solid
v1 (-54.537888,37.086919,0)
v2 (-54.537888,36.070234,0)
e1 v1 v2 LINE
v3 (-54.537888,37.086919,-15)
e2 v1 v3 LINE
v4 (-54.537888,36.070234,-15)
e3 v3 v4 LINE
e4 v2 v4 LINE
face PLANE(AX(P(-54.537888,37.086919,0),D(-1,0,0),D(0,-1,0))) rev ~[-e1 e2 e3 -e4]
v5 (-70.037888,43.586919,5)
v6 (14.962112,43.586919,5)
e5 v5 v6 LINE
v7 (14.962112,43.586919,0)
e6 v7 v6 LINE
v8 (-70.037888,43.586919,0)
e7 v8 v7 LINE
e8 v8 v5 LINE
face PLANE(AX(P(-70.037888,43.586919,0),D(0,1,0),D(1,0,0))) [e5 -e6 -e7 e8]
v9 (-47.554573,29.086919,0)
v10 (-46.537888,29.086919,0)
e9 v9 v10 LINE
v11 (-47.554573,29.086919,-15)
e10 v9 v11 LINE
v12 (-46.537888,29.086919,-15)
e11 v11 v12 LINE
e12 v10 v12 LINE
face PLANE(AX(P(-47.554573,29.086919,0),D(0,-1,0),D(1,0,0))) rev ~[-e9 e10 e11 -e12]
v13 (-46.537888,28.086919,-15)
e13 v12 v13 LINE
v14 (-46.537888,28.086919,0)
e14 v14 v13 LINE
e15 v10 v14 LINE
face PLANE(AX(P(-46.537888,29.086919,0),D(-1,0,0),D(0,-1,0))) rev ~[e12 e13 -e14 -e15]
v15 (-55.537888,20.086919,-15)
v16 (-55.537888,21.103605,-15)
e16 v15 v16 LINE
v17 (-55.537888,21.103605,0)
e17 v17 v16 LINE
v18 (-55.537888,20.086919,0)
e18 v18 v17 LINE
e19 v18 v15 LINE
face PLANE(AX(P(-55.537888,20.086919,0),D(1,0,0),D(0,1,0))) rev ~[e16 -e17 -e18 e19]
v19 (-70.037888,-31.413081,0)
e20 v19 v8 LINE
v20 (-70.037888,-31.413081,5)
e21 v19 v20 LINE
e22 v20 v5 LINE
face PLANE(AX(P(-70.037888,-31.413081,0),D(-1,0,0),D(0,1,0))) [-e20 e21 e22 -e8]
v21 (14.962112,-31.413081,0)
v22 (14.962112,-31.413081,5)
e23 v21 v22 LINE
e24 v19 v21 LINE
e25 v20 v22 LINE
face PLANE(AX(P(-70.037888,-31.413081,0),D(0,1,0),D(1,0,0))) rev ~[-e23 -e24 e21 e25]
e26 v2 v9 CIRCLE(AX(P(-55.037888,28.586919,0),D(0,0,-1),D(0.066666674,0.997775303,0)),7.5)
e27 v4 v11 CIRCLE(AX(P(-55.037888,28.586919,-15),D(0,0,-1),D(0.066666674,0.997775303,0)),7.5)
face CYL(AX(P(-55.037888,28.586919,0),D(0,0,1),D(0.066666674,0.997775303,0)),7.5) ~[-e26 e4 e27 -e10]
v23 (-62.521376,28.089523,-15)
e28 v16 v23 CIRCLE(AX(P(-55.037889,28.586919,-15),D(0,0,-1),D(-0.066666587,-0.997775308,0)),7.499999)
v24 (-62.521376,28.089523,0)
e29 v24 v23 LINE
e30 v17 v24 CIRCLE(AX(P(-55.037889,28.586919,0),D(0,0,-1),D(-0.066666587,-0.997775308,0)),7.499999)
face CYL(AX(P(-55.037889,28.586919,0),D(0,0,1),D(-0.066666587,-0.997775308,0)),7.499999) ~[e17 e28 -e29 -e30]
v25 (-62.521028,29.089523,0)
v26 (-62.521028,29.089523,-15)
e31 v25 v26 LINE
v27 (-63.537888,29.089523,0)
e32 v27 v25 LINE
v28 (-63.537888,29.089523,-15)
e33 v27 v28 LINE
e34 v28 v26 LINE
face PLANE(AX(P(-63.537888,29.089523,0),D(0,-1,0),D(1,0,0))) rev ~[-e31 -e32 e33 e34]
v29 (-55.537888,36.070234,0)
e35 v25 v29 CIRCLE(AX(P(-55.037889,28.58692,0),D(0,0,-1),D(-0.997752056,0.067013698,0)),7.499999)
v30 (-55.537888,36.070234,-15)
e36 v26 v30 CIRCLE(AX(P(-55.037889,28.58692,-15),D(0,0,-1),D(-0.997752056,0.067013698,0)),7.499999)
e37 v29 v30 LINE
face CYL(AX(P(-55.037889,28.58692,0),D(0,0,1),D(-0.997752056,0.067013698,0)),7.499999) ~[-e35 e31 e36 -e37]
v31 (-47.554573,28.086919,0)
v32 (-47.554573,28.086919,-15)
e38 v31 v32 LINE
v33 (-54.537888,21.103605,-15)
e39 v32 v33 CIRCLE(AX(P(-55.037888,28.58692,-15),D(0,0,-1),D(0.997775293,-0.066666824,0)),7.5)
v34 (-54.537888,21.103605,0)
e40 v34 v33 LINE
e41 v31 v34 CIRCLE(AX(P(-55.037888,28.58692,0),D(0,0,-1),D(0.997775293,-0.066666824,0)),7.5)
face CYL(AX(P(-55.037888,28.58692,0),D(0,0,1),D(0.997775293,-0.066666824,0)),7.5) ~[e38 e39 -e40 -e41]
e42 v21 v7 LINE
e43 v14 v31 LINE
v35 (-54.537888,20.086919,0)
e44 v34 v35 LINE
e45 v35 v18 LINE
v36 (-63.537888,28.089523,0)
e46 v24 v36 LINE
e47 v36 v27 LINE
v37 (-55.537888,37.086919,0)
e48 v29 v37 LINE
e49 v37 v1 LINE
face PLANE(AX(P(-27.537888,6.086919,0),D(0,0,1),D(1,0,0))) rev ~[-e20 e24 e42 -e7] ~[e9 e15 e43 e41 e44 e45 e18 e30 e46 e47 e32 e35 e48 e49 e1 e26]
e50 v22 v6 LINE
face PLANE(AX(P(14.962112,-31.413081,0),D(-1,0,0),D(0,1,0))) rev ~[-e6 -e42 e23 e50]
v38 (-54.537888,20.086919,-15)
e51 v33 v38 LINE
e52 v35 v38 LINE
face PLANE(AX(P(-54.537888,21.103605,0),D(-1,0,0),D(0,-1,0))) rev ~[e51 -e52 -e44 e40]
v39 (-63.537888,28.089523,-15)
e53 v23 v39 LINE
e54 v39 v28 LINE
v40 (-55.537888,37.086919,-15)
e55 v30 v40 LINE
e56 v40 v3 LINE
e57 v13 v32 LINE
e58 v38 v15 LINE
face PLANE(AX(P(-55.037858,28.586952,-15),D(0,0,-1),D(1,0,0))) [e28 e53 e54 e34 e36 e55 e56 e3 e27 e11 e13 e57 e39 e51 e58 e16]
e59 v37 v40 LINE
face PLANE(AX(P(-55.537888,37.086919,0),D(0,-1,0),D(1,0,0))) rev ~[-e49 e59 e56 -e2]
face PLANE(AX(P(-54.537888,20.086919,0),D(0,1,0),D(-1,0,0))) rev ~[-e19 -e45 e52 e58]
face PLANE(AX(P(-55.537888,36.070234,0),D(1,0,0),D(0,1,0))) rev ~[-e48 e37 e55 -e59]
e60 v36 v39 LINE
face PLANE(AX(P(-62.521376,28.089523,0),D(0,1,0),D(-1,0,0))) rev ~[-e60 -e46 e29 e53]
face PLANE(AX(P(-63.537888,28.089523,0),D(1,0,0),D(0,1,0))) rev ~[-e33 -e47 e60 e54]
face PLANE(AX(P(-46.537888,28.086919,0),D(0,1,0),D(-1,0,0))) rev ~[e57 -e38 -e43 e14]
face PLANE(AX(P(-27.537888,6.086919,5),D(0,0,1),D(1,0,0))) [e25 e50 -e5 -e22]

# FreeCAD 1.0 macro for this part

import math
import FreeCAD as App
import Part
import Sketcher

V = App.Vector

doc = App.newDocument("Part")
body = doc.addObject("PartDesign::Body", "Body")

sketch1 = doc.addObject("Sketcher::SketchObject", "Sketch")
body.addObject(sketch1)
sketch1.AttachmentSupport = (doc.XY_Plane, [""])
sketch1.MapMode = "FlatFace"
sketch1.addGeometry(Part.LineSegment(V(-70, 44, 0), V(-70, -31, 0)), False)
sketch1.addGeometry(Part.LineSegment(V(-70, -31, 0), V(15, -31, 0)), False)
sketch1.addGeometry(Part.LineSegment(V(15, -31, 0), V(15, 44, 0)), False)
sketch1.addGeometry(Part.LineSegment(V(15, 44, 0), V(-70, 44, 0)), False)
sketch1.addConstraint(Sketcher.Constraint("Coincident", 0, 2, 1, 1))
sketch1.addConstraint(Sketcher.Constraint("Coincident", 1, 2, 2, 1))
sketch1.addConstraint(Sketcher.Constraint("Coincident", 2, 2, 3, 1))
sketch1.addConstraint(Sketcher.Constraint("Coincident", 3, 2, 0, 1))
sketch1.addConstraint(Sketcher.Constraint("Vertical", 0))
sketch1.addConstraint(Sketcher.Constraint("Horizontal", 1))
sketch1.addConstraint(Sketcher.Constraint("Vertical", 2))
sketch1.addConstraint(Sketcher.Constraint("Horizontal", 3))
sketch1.addConstraint(Sketcher.Constraint("DistanceX", 1, 1, 1, 2, 85.0))
sketch1.addConstraint(Sketcher.Constraint("DistanceY", 0, 2, 0, 1, 75.0))
sketch1.addConstraint(Sketcher.Constraint("DistanceY", 0, 2, -1, 1, 31.413081))
sketch1.addConstraint(Sketcher.Constraint("DistanceX", 0, 2, -1, 1, 70.037888))
pad1 = doc.addObject("PartDesign::Pad", "Pad")
body.addObject(pad1)
pad1.Profile = sketch1
pad1.Length = 5

sketch2 = doc.addObject("Sketcher::SketchObject", "Sketch001")
body.addObject(sketch2)
sketch2.AttachmentSupport = (doc.XY_Plane, [""])
sketch2.MapMode = "FlatFace"
sketch2.addGeometry(Part.ArcOfCircle(Part.Circle(V(-55.037888, 28.58692, 0), V(0, 0, 1), 7.5), math.radians(-86.177445), math.radians(-3.822563)), False)
sketch2.addGeometry(Part.LineSegment(V(-54.537888, 21.103605, 0), V(-54.537888, 20.086919, 0)), False)
sketch2.addGeometry(Part.LineSegment(V(-54.537888, 20.086919, 0), V(-55.537888, 20.086919, 0)), False)
sketch2.addGeometry(Part.LineSegment(V(-55.537888, 20.086919, 0), V(-55.537888, 21.103605, 0)), False)
sketch2.addGeometry(Part.ArcOfCircle(Part.Circle(V(-55.037889, 28.586919, 0), V(0, 0, 1), 7.499999), math.radians(-176.197384), math.radians(-93.822549)), False)
sketch2.addGeometry(Part.LineSegment(V(-62.521376, 28.089523, 0), V(-63.537888, 28.089523, 0)), False)
sketch2.addGeometry(Part.LineSegment(V(-63.537888, 28.089523, 0), V(-63.537888, 29.089523, 0)), False)
sketch2.addGeometry(Part.LineSegment(V(-63.537888, 29.089523, 0), V(-62.521028, 29.089523, 0)), False)
sketch2.addGeometry(Part.ArcOfCircle(Part.Circle(V(-55.037889, 28.58692, 0), V(0, 0, 1), 7.499999), math.radians(93.822549), math.radians(176.157518)), False)
sketch2.addGeometry(Part.LineSegment(V(-55.537888, 36.070234, 0), V(-55.537888, 37.086919, 0)), False)
sketch2.addGeometry(Part.LineSegment(V(-55.537888, 37.086919, 0), V(-54.537888, 37.086919, 0)), False)
sketch2.addGeometry(Part.LineSegment(V(-54.537888, 37.086919, 0), V(-54.537888, 36.070234, 0)), False)
sketch2.addGeometry(Part.ArcOfCircle(Part.Circle(V(-55.037888, 28.586919, 0), V(0, 0, 1), 7.5), math.radians(3.822554), math.radians(86.177446)), False)
sketch2.addGeometry(Part.LineSegment(V(-47.554573, 29.086919, 0), V(-46.537888, 29.086919, 0)), False)
sketch2.addGeometry(Part.LineSegment(V(-46.537888, 29.086919, 0), V(-46.537888, 28.086919, 0)), False)
sketch2.addGeometry(Part.LineSegment(V(-46.537888, 28.086919, 0), V(-47.554573, 28.086919, 0)), False)
sketch2.addConstraint(Sketcher.Constraint("Coincident", 0, 1, 1, 1))
sketch2.addConstraint(Sketcher.Constraint("Coincident", 1, 2, 2, 1))
sketch2.addConstraint(Sketcher.Constraint("Coincident", 2, 2, 3, 1))
sketch2.addConstraint(Sketcher.Constraint("Coincident", 3, 2, 4, 2))
sketch2.addConstraint(Sketcher.Constraint("Coincident", 4, 1, 5, 1))
sketch2.addConstraint(Sketcher.Constraint("Coincident", 5, 2, 6, 1))
sketch2.addConstraint(Sketcher.Constraint("Coincident", 6, 2, 7, 1))
sketch2.addConstraint(Sketcher.Constraint("Coincident", 7, 2, 8, 2))
sketch2.addConstraint(Sketcher.Constraint("Coincident", 8, 1, 9, 1))
sketch2.addConstraint(Sketcher.Constraint("Coincident", 9, 2, 10, 1))
sketch2.addConstraint(Sketcher.Constraint("Coincident", 10, 2, 11, 1))
sketch2.addConstraint(Sketcher.Constraint("Coincident", 11, 2, 12, 2))
sketch2.addConstraint(Sketcher.Constraint("Coincident", 12, 1, 13, 1))
sketch2.addConstraint(Sketcher.Constraint("Coincident", 13, 2, 14, 1))
sketch2.addConstraint(Sketcher.Constraint("Coincident", 14, 2, 15, 1))
sketch2.addConstraint(Sketcher.Constraint("Coincident", 15, 2, 0, 2))
sketch2.addConstraint(Sketcher.Constraint("Vertical", 1))
sketch2.addConstraint(Sketcher.Constraint("Horizontal", 2))
sketch2.addConstraint(Sketcher.Constraint("Vertical", 3))
sketch2.addConstraint(Sketcher.Constraint("Horizontal", 5))
sketch2.addConstraint(Sketcher.Constraint("Vertical", 6))
sketch2.addConstraint(Sketcher.Constraint("Horizontal", 7))
sketch2.addConstraint(Sketcher.Constraint("Vertical", 9))
sketch2.addConstraint(Sketcher.Constraint("Horizontal", 10))
sketch2.addConstraint(Sketcher.Constraint("Vertical", 11))
sketch2.addConstraint(Sketcher.Constraint("Horizontal", 13))
sketch2.addConstraint(Sketcher.Constraint("Vertical", 14))
sketch2.addConstraint(Sketcher.Constraint("Horizontal", 15))
sketch2.addConstraint(Sketcher.Constraint("Coincident", 4, 3, 0, 3))
sketch2.addConstraint(Sketcher.Constraint("Coincident", 8, 3, 0, 3))
sketch2.addConstraint(Sketcher.Constraint("Coincident", 12, 3, 0, 3))
sketch2.addConstraint(Sketcher.Constraint("Equal", 0, 4))
sketch2.addConstraint(Sketcher.Constraint("Equal", 4, 8))
sketch2.addConstraint(Sketcher.Constraint("Equal", 8, 12))
sketch2.addConstraint(Sketcher.Constraint("Horizontal", 0, 1, 3, 2))
sketch2.addConstraint(Sketcher.Constraint("Horizontal", 8, 1, 11, 2))
sketch2.addConstraint(Sketcher.Constraint("Vertical", 3, 2, 8, 1))
sketch2.addConstraint(Sketcher.Constraint("Vertical", 12, 1, 15, 2))
sketch2.addConstraint(Sketcher.Constraint("Equal", 15, 1))
sketch2.addConstraint(Sketcher.Constraint("Equal", 10, 6))
sketch2.addConstraint(Sketcher.Constraint("Equal", 3, 9))
sketch2.addConstraint(Sketcher.Constraint("Equal", 6, 14))
sketch2.addConstraint(Sketcher.Constraint("Radius", 0, 7.5))
sketch2.addConstraint(Sketcher.Constraint("DistanceX", 2, 2, 2, 1, 1.0))
sketch2.addConstraint(Sketcher.Constraint("DistanceY", 1, 2, 4, 3, 8.5))
sketch2.addConstraint(Sketcher.Constraint("DistanceX", 5, 2, 4, 3, 8.499999))
sketch2.addConstraint(Sketcher.Constraint("DistanceX", 7, 1, 7, 2, 1.01686))
sketch2.addConstraint(Sketcher.Constraint("DistanceX", 0, 3, -1, 1, 55.037888))
sketch2.addConstraint(Sketcher.Constraint("DistanceY", -1, 1, 0, 3, 28.58692))
pad2 = doc.addObject("PartDesign::Pad", "Pad001")
body.addObject(pad2)
pad2.Profile = sketch2
pad2.Length = 15
pad2.Reversed = True

doc.recompute()
